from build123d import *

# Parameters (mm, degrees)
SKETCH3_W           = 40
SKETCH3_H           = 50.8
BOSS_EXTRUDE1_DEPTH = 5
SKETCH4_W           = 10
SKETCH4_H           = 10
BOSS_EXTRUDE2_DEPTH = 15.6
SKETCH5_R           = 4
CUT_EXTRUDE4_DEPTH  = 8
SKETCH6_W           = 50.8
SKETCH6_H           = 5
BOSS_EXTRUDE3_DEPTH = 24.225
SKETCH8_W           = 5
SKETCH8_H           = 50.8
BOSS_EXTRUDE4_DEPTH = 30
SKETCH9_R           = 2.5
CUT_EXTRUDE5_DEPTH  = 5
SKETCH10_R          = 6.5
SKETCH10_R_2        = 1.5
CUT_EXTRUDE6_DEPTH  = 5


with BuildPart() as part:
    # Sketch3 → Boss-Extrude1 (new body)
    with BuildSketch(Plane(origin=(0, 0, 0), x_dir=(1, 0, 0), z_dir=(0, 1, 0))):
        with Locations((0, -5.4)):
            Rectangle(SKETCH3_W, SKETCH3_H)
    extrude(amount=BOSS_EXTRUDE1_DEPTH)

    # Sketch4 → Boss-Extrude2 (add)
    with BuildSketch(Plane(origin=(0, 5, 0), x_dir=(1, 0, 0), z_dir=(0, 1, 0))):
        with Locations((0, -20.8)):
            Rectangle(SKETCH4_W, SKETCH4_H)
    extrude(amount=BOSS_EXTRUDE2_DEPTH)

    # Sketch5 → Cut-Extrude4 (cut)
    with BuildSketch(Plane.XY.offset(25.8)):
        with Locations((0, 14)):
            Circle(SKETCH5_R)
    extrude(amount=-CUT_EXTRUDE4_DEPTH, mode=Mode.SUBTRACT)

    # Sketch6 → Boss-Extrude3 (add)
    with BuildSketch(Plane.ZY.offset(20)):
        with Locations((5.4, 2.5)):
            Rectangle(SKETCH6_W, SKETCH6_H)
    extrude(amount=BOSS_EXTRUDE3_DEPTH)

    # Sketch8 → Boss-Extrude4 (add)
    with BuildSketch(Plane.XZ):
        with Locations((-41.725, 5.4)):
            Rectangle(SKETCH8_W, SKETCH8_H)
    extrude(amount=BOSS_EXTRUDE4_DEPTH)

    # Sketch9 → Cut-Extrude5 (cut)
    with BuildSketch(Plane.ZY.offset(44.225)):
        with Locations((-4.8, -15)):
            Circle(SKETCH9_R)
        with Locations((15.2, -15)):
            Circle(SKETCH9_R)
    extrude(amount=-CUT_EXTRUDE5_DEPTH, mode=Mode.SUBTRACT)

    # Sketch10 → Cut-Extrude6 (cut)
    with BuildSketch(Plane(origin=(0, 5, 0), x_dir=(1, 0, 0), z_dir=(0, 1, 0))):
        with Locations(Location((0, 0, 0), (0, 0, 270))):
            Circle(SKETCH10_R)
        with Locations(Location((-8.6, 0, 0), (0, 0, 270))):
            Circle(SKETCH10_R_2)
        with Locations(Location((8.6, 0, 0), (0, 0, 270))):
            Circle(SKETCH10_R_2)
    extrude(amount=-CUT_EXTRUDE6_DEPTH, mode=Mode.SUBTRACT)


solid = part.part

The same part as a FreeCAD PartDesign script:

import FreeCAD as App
import Part
import Sketcher

V = App.Vector

doc = App.newDocument("Part")
body = doc.addObject("PartDesign::Body", "Body")

sketch1 = body.newObject("Sketcher::SketchObject", "Sketch")
sketch1.AttachmentSupport = (doc.getObject("XZ_Plane"), [""])
sketch1.MapMode = "FlatFace"
sketch1.addGeometry([
    Part.LineSegment(V(-20, -20, 0), V(-20, 30.8, 0)),
    Part.LineSegment(V(-20, 30.8, 0), V(20, 30.8, 0)),
    Part.LineSegment(V(20, 30.8, 0), V(20, -20, 0)),
    Part.LineSegment(V(20, -20, 0), V(-20, -20, 0)),
], False)
sketch1.addConstraint([
    Sketcher.Constraint("Coincident", 0, 2, 1, 1),
    Sketcher.Constraint("Coincident", 1, 2, 2, 1),
    Sketcher.Constraint("Coincident", 2, 2, 3, 1),
    Sketcher.Constraint("Coincident", 3, 2, 0, 1),
    Sketcher.Constraint("Vertical", 0),
    Sketcher.Constraint("Horizontal", 1),
    Sketcher.Constraint("Vertical", 2),
    Sketcher.Constraint("Horizontal", 3),
    Sketcher.Constraint("DistanceX", 1, 1, 1, 2, 40.0),
    Sketcher.Constraint("DistanceY", 0, 1, 0, 2, 50.8),
    Sketcher.Constraint("DistanceX", 0, 2, -1, 1, 20.0),
    Sketcher.Constraint("DistanceY", 2, 2, -1, 1, 20.0),
])
pad1 = body.newObject("PartDesign::Pad", "Pad")
pad1.Profile = sketch1
pad1.Length = 5
pad1.Reversed = True

sketch2 = body.newObject("Sketcher::SketchObject", "Sketch001")
sketch2.AttachmentSupport = (doc.getObject("XZ_Plane"), [""])
sketch2.MapMode = "FlatFace"
sketch2.AttachmentOffset = App.Placement(V(0, 0, -5), App.Rotation())
sketch2.addGeometry([
    Part.LineSegment(V(-5, 15.8, 0), V(-5, 25.8, 0)),
    Part.LineSegment(V(-5, 25.8, 0), V(5, 25.8, 0)),
    Part.LineSegment(V(5, 25.8, 0), V(5, 15.8, 0)),
    Part.LineSegment(V(5, 15.8, 0), V(-5, 15.8, 0)),
], False)
sketch2.addConstraint([
    Sketcher.Constraint("Coincident", 0, 2, 1, 1),
    Sketcher.Constraint("Coincident", 1, 2, 2, 1),
    Sketcher.Constraint("Coincident", 2, 2, 3, 1),
    Sketcher.Constraint("Coincident", 3, 2, 0, 1),
    Sketcher.Constraint("Vertical", 0),
    Sketcher.Constraint("Horizontal", 1),
    Sketcher.Constraint("Vertical", 2),
    Sketcher.Constraint("Horizontal", 3),
    Sketcher.Constraint("Equal", 3, 0),
    Sketcher.Constraint("DistanceX", 1, 1, 1, 2, 10.0),
    Sketcher.Constraint("DistanceX", 0, 2, -1, 1, 5.0),
    Sketcher.Constraint("DistanceY", -1, 1, 0, 2, 25.8),
])
pad2 = body.newObject("PartDesign::Pad", "Pad001")
pad2.Profile = sketch2
pad2.Length = 15.6
pad2.Reversed = True

sketch3 = body.newObject("Sketcher::SketchObject", "Sketch002")
sketch3.AttachmentSupport = (doc.getObject("XY_Plane"), [""])
sketch3.MapMode = "FlatFace"
sketch3.AttachmentOffset = App.Placement(V(0, 0, 25.8), App.Rotation())
sketch3.addGeometry(Part.Circle(V(0, 14, 0), V(0, 0, 1), 4), False)
sketch3.addConstraint([
    Sketcher.Constraint("PointOnObject", 0, 3, -2),
    Sketcher.Constraint("Diameter", 0, 8.0),
    Sketcher.Constraint("DistanceY", -1, 1, 0, 3, 14.0),
])
pocket1 = body.newObject("PartDesign::Pocket", "Pocket")
pocket1.Profile = sketch3
pocket1.Length = 8

sketch4 = body.newObject("Sketcher::SketchObject", "Sketch003")
sketch4.AttachmentSupport = (doc.getObject("YZ_Plane"), [""])
sketch4.MapMode = "FlatFace"
sketch4.AttachmentOffset = App.Placement(V(0, 0, -20), App.Rotation())
sketch4.addGeometry([
    Part.LineSegment(V(5, -20, 0), V(0, -20, 0)),
    Part.LineSegment(V(0, -20, 0), V(0, 30.8, 0)),
    Part.LineSegment(V(0, 30.8, 0), V(5, 30.8, 0)),
    Part.LineSegment(V(5, 30.8, 0), V(5, -20, 0)),
], False)
sketch4.addConstraint([
    Sketcher.Constraint("Coincident", 0, 2, 1, 1),
    Sketcher.Constraint("Coincident", 1, 2, 2, 1),
    Sketcher.Constraint("Coincident", 2, 2, 3, 1),
    Sketcher.Constraint("Coincident", 3, 2, 0, 1),
    Sketcher.Constraint("Horizontal", 0),
    Sketcher.Constraint("Vertical", 1),
    Sketcher.Constraint("Horizontal", 2),
    Sketcher.Constraint("Vertical", 3),
    Sketcher.Constraint("PointOnObject", 0, 2, -2),
    Sketcher.Constraint("DistanceX", 0, 2, 0, 1, 5.0),
    Sketcher.Constraint("DistanceY", 1, 1, 1, 2, 50.8),
    Sketcher.Constraint("DistanceY", 0, 2, -1, 1, 20.0),
])
pad3 = body.newObject("PartDesign::Pad", "Pad002")
pad3.Profile = sketch4
pad3.Length = 24.225
pad3.Reversed = True

sketch5 = body.newObject("Sketcher::SketchObject", "Sketch004")
sketch5.AttachmentSupport = (doc.getObject("XZ_Plane"), [""])
sketch5.MapMode = "FlatFace"
sketch5.addGeometry([
    Part.LineSegment(V(-44.225, 30.8, 0), V(-44.225, -20, 0)),
    Part.LineSegment(V(-44.225, -20, 0), V(-39.225, -20, 0)),
    Part.LineSegment(V(-39.225, -20, 0), V(-39.225, 30.8, 0)),
    Part.LineSegment(V(-39.225, 30.8, 0), V(-44.225, 30.8, 0)),
], False)
sketch5.addConstraint([
    Sketcher.Constraint("Coincident", 0, 2, 1, 1),
    Sketcher.Constraint("Coincident", 1, 2, 2, 1),
    Sketcher.Constraint("Coincident", 2, 2, 3, 1),
    Sketcher.Constraint("Coincident", 3, 2, 0, 1),
    Sketcher.Constraint("Vertical", 0),
    Sketcher.Constraint("Horizontal", 1),
    Sketcher.Constraint("Vertical", 2),
    Sketcher.Constraint("Horizontal", 3),
    Sketcher.Constraint("DistanceX", 1, 1, 1, 2, 5.0),
    Sketcher.Constraint("DistanceY", 0, 2, 0, 1, 50.8),
    Sketcher.Constraint("DistanceY", 0, 2, -1, 1, 20.0),
    Sketcher.Constraint("DistanceX", 0, 2, -1, 1, 44.225),
])
pad4 = body.newObject("PartDesign::Pad", "Pad003")
pad4.Profile = sketch5
pad4.Length = 30

sketch6 = body.newObject("Sketcher::SketchObject", "Sketch005")
sketch6.AttachmentSupport = (doc.getObject("YZ_Plane"), [""])
sketch6.MapMode = "FlatFace"
sketch6.AttachmentOffset = App.Placement(V(0, 0, -44.225), App.Rotation())
sketch6.addGeometry([
    Part.Circle(V(-15, -4.8, 0), V(0, 0, 1), 2.5),
    Part.Circle(V(-15, 15.2, 0), V(0, 0, 1), 2.5),
], False)
sketch6.addConstraint([
    Sketcher.Constraint("Equal", 0, 1),
    Sketcher.Constraint("Vertical", 0, 3, 1, 3),
    Sketcher.Constraint("Diameter", 0, 5.0),
    Sketcher.Constraint("DistanceX", 0, 3, -1, 1, 15.0),
    Sketcher.Constraint("DistanceY", 0, 3, 1, 3, 20.0),
    Sketcher.Constraint("DistanceY", 0, 3, -1, 1, 4.8),
])
pocket2 = body.newObject("PartDesign::Pocket", "Pocket001")
pocket2.Profile = sketch6
pocket2.Length = 5
pocket2.Reversed = True

sketch7 = body.newObject("Sketcher::SketchObject", "Sketch006")
sketch7.AttachmentSupport = (doc.getObject("XZ_Plane"), [""])
sketch7.MapMode = "FlatFace"
sketch7.AttachmentOffset = App.Placement(V(0, 0, -5), App.Rotation())
sketch7.addGeometry([
    Part.Circle(V(0, 0, 0), V(0, 0, 1), 6.5),
    Part.Circle(V(-8.6, 0, 0), V(0, 0, 1), 1.5),
    Part.Circle(V(8.6, 0, 0), V(0, 0, 1), 1.5),
], False)
sketch7.addConstraint([
    Sketcher.Constraint("Coincident", 0, 3, -1, 1),
    Sketcher.Constraint("Equal", 1, 2),
    Sketcher.Constraint("Symmetric", 1, 3, 2, 3, -1, 1),
    Sketcher.Constraint("PointOnObject", 1, 3, -1),
    Sketcher.Constraint("Diameter", 0, 13.0),
    Sketcher.Constraint("Diameter", 1, 3.0),
    Sketcher.Constraint("DistanceX", 1, 3, -1, 1, 8.6),
])
pocket3 = body.newObject("PartDesign::Pocket", "Pocket002")
pocket3.Profile = sketch7
pocket3.Length = 5
pocket3.Reversed = True

doc.recompute()
